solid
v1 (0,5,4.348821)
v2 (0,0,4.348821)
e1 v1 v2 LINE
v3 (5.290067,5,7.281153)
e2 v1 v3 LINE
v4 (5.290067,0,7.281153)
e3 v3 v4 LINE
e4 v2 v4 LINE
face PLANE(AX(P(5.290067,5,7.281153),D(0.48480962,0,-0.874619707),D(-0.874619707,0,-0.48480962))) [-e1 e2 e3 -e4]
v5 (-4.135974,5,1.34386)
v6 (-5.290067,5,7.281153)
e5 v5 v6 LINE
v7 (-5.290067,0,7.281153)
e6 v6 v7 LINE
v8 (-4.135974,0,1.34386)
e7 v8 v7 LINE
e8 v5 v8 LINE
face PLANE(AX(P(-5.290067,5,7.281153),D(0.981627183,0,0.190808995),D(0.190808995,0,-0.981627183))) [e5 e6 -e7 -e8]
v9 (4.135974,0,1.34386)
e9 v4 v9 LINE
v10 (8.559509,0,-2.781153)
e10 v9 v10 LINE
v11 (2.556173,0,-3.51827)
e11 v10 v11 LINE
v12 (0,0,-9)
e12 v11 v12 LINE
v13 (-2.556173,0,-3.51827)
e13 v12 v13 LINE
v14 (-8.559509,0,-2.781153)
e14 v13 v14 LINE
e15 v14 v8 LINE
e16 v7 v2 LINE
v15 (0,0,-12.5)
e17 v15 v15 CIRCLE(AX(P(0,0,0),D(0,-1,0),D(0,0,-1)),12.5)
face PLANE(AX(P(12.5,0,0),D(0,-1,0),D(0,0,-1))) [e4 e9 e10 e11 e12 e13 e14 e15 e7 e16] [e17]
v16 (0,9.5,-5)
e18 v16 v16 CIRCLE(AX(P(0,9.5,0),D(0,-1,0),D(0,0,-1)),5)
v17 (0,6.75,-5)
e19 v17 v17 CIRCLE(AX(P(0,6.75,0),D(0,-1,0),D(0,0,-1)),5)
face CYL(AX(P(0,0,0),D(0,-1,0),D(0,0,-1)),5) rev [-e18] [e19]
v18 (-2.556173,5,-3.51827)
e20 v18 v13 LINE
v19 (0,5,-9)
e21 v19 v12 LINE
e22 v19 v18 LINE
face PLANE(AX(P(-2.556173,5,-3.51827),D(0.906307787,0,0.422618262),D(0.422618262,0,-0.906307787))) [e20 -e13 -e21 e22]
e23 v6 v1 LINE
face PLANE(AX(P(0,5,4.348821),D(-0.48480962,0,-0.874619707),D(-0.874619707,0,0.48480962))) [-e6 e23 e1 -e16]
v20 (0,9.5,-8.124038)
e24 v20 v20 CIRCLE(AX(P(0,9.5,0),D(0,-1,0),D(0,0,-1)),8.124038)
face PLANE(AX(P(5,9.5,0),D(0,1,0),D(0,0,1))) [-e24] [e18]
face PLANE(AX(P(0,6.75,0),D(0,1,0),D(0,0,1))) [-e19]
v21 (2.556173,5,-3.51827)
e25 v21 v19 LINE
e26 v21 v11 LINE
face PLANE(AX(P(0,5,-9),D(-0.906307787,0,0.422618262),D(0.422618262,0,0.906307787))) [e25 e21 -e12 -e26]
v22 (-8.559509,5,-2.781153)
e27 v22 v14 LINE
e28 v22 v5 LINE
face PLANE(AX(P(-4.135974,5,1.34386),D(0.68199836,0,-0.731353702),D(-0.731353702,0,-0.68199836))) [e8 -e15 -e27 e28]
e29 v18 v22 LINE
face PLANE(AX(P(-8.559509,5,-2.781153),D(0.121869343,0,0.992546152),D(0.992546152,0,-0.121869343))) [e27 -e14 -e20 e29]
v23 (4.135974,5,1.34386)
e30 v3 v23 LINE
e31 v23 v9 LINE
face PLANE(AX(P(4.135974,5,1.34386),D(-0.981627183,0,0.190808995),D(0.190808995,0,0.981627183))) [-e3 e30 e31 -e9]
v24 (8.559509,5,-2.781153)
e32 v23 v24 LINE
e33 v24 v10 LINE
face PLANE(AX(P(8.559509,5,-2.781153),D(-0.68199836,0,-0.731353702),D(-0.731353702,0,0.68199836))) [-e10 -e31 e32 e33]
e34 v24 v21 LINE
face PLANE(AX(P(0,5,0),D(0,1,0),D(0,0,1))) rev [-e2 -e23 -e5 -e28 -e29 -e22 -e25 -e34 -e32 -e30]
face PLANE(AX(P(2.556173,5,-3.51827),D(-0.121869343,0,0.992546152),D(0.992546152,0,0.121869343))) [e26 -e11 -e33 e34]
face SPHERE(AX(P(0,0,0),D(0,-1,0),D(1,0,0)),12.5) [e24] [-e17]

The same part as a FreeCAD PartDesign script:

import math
import FreeCAD as App
import Part
import Sketcher
from FreeCAD import Vector
Q = App.Units.Quantity


def add_polygon(sketch, points):
    """Adds a closed chain of lines whose ends are joined by coincident constraints."""
    first, n = sketch.GeometryCount, len(points)
    for a, b in zip(points, points[1:] + points[:1]):
        sketch.addGeometry(Part.LineSegment(App.Vector(*a, 0), App.Vector(*b, 0)), False)
    for i in range(n):
        sketch.addConstraint(Sketcher.Constraint("Coincident", first + i, 2, first + (i + 1) % n, 1))

doc = App.newDocument("Part")
body = doc.addObject("PartDesign::Body", "Body")

# Sketch on XY plane
sketch1 = doc.addObject("Sketcher::SketchObject", "Sketch")
body.addObject(sketch1)
sketch1.AttachmentSupport = (doc.XY_Plane, [""])
sketch1.MapMode = "FlatFace"
sketch1.addGeometry([
    Part.LineSegment(Vector(0, 0, 0), Vector(12.5, 0, 0)),  # 0
    Part.ArcOfCircle(Part.Circle(Vector(0, 0, 0), Vector(0, 0, 1), 12.5), math.radians(0), math.radians(49.464198)),  # 1
    Part.LineSegment(Vector(8.124038, 9.5, 0), Vector(5, 9.5, 0)),  # 2
    Part.LineSegment(Vector(5, 9.5, 0), Vector(5, 6.75, 0)),  # 3
    Part.LineSegment(Vector(5, 6.75, 0), Vector(0, 6.75, 0)),  # 4
    Part.LineSegment(Vector(0, 6.75, 0), Vector(0, 0, 0)),  # 5
], False)
sketch1.addConstraint([
    Sketcher.Constraint("Coincident", 0, 2, 1, 1),
    Sketcher.Constraint("Coincident", 1, 2, 2, 1),
    Sketcher.Constraint("Coincident", 2, 2, 3, 1),
    Sketcher.Constraint("Coincident", 3, 2, 4, 1),
    Sketcher.Constraint("Coincident", 4, 2, 5, 1),
    Sketcher.Constraint("Coincident", 5, 2, 0, 1),
    Sketcher.Constraint("Horizontal", 0),
    Sketcher.Constraint("Horizontal", 2),
    Sketcher.Constraint("Vertical", 3),
    Sketcher.Constraint("Horizontal", 4),
    Sketcher.Constraint("Vertical", 5),
    Sketcher.Constraint("Coincident", 1, 3, -1, 1),
    Sketcher.Constraint("Coincident", 5, 2, -1, 1),
    Sketcher.Constraint("Radius", 1, 12.5),
    Sketcher.Constraint("DistanceX", 4, 2, 4, 1, 5.0),
    Sketcher.Constraint("DistanceY", 3, 2, 3, 1, 2.75),
    Sketcher.Constraint("DistanceY", 5, 2, 5, 1, 6.75),
])
revolution = doc.addObject("PartDesign::Revolution", "Revolution")
body.addObject(revolution)
revolution.Profile = sketch1
revolution.ReferenceAxis = (sketch1, ["V_Axis"])
revolution.Angle = 360

# Sketch on XZ plane
sketch2 = doc.addObject("Sketcher::SketchObject", "Sketch001")
body.addObject(sketch2)
sketch2.AttachmentSupport = (doc.XZ_Plane, [""])
sketch2.MapMode = "FlatFace"
add_polygon(sketch2, [(2.556173, -3.51827), (0, -9), (-2.556173, -3.51827), (-8.559509, -2.781153), (-4.135974, 1.34386), (-5.290067, 7.281153), (0, 4.348821), (5.290067, 7.281153), (4.135974, 1.34386), (8.559509, -2.781153)])  # lines 0-9
sketch2.addConstraint([
    Sketcher.Constraint("Symmetric", 4, 2, 6, 2, -2),
    Sketcher.Constraint("Symmetric", 3, 2, 7, 2, -2),
    Sketcher.Constraint("Symmetric", 2, 2, 8, 2, -2),
    Sketcher.Constraint("Symmetric", 1, 2, 9, 2, -2),
    Sketcher.Constraint("PointOnObject", 0, 2, -2),
    Sketcher.Constraint("PointOnObject", 5, 2, -2),
    Sketcher.Constraint("Equal", 1, 2),
    Sketcher.Constraint("Equal", 2, 3),
    Sketcher.Constraint("Equal", 3, 4),
    Sketcher.Constraint("Equal", 4, 5),
    Sketcher.Constraint("Angle", 0, Q("-115 deg")),
    Sketcher.Constraint("Angle", 2, Q("173 deg")),
    Sketcher.Constraint("Angle", 3, Q("43 deg")),
    Sketcher.Constraint("Angle", 4, Q("101 deg")),
    Sketcher.Constraint("DistanceY", 0, 2, -1, 1, 9.0),
    Sketcher.Constraint("DistanceX", 3, 2, 1, 2, 1.579802),
])
pocket1 = doc.addObject("PartDesign::Pocket", "Pocket")
body.addObject(pocket1)
pocket1.Profile = sketch2
pocket1.Length = 5

doc.recompute()
